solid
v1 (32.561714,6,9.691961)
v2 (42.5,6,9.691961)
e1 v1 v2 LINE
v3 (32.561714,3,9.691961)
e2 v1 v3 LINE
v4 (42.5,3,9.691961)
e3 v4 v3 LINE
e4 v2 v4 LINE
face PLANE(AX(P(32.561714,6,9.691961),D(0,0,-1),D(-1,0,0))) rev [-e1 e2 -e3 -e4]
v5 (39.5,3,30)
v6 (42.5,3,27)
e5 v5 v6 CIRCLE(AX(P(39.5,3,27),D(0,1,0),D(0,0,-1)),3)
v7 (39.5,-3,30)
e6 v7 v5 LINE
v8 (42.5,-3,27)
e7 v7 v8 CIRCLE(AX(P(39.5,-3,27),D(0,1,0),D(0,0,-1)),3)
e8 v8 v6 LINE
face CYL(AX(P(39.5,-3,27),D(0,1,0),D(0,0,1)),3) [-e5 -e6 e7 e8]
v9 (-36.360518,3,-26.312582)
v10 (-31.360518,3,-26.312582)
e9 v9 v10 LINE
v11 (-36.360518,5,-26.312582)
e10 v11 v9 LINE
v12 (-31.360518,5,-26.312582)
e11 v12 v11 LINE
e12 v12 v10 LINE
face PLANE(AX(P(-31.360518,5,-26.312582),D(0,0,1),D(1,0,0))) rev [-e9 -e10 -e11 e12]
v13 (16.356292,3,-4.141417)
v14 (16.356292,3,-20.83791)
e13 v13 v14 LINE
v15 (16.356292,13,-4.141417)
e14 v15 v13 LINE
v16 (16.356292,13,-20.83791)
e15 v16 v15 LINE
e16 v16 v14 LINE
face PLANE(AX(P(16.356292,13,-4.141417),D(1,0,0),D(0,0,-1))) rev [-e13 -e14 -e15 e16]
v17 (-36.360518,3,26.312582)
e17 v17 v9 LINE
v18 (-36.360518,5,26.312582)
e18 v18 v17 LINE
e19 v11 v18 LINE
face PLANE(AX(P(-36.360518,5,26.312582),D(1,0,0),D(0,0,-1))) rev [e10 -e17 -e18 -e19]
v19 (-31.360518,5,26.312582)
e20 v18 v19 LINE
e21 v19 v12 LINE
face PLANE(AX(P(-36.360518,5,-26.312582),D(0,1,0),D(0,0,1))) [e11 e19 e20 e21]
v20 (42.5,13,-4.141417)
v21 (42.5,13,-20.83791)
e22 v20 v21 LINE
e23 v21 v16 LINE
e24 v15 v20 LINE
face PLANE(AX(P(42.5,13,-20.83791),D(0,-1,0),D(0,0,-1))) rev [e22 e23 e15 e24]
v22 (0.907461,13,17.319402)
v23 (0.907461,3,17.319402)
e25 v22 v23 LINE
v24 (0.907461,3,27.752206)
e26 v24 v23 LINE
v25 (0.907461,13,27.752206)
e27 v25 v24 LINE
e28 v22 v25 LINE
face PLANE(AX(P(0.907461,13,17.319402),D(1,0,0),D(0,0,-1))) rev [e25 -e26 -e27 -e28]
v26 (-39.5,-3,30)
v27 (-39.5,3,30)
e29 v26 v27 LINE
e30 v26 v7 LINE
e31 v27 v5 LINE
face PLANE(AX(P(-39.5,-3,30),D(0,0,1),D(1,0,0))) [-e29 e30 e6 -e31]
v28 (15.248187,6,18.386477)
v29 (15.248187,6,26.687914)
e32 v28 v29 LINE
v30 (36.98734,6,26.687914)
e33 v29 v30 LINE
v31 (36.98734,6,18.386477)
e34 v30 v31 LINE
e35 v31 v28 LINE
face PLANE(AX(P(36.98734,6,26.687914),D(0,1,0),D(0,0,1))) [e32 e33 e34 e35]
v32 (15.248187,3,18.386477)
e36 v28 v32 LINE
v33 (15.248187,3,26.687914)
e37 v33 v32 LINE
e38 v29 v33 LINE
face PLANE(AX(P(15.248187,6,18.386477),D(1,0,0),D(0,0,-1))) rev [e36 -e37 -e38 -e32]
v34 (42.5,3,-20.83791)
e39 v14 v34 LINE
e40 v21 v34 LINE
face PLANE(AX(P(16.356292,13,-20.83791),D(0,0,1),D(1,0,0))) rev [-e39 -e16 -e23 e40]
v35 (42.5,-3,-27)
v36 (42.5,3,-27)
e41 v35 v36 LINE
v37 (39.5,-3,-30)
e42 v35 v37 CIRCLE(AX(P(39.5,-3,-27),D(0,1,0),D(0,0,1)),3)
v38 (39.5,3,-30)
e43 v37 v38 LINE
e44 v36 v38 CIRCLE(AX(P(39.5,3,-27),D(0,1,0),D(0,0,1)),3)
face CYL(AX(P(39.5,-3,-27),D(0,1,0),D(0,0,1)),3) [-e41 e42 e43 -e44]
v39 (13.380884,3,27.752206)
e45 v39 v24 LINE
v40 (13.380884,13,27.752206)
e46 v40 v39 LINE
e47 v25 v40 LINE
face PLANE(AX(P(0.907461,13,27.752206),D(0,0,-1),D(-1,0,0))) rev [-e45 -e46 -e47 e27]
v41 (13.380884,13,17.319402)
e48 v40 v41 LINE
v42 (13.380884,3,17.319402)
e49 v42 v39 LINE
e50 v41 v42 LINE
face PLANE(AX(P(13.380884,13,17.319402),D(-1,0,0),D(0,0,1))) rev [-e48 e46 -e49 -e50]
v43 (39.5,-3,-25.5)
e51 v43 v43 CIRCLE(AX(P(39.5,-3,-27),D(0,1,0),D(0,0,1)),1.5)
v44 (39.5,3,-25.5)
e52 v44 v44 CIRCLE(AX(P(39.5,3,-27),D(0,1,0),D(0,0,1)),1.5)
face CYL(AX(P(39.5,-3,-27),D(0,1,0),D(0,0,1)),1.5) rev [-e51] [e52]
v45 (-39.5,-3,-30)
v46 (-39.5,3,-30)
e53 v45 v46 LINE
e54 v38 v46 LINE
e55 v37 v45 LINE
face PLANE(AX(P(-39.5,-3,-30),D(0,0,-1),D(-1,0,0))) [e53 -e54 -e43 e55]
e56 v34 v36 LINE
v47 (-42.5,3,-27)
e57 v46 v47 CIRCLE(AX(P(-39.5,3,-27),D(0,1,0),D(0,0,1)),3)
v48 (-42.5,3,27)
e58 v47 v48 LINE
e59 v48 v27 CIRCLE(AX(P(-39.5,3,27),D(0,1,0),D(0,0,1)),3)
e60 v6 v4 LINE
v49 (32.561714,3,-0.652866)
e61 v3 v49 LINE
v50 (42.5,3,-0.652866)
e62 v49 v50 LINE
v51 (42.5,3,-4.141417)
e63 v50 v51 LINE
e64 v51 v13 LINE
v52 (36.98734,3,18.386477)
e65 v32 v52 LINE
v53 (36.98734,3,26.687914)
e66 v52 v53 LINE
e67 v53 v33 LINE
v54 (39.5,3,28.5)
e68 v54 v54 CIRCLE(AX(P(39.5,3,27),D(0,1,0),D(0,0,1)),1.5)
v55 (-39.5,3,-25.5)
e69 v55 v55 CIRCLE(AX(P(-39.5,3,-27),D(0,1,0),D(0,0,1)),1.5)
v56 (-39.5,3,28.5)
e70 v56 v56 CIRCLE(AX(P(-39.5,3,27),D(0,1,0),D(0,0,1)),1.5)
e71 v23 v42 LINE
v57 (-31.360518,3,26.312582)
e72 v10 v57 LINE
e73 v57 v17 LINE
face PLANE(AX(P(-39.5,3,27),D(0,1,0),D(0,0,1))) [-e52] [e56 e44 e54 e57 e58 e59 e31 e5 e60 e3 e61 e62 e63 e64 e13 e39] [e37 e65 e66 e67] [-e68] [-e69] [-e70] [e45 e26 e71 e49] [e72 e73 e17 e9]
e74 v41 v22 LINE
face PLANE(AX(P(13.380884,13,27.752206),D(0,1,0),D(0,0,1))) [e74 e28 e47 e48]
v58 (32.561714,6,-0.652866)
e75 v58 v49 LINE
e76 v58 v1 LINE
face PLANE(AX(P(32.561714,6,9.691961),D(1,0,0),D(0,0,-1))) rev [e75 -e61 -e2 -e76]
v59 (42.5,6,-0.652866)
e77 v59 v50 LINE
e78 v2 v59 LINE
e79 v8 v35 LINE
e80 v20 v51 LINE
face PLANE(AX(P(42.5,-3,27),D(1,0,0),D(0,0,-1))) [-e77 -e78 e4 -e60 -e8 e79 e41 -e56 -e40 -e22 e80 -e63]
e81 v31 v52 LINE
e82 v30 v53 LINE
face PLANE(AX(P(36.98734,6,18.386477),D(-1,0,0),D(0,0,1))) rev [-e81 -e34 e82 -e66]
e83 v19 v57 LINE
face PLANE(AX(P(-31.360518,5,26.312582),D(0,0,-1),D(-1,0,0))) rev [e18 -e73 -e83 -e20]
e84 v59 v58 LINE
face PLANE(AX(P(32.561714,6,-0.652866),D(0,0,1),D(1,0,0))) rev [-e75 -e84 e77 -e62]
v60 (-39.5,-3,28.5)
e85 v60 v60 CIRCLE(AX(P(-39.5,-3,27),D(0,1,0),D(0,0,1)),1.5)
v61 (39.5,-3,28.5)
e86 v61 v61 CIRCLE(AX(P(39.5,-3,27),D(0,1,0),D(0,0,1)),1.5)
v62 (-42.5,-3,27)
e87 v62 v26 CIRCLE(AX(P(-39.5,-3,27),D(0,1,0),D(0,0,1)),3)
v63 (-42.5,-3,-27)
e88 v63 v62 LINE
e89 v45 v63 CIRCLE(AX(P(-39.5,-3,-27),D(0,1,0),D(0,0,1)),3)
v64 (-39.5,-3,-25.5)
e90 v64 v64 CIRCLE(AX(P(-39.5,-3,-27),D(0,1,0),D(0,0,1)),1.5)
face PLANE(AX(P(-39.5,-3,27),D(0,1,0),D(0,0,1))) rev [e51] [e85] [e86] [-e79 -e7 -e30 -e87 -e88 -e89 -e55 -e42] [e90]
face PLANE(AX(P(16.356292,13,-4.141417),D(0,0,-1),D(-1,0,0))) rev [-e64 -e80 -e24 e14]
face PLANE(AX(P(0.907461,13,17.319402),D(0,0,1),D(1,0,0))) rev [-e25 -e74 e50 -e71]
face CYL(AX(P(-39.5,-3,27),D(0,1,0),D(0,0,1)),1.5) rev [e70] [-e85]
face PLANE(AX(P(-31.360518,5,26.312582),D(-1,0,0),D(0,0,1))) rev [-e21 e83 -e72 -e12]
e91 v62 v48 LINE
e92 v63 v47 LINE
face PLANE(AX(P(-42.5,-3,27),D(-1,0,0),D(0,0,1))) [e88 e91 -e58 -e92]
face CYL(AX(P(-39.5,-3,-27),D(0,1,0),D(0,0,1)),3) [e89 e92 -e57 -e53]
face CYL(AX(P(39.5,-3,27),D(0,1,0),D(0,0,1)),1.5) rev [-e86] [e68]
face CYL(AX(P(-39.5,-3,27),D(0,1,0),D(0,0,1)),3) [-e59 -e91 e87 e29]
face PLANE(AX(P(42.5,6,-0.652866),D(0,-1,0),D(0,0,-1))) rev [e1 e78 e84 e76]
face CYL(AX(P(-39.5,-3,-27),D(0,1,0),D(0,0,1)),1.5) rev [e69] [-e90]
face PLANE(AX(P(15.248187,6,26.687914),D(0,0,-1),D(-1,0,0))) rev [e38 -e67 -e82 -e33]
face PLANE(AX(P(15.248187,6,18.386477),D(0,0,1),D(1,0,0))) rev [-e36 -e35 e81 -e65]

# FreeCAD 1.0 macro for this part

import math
import FreeCAD as App
import Part
import Sketcher

doc = App.newDocument("Part")
body = doc.addObject("PartDesign::Body", "Body")

# Sketch on XZ plane
sketch1 = body.newObject("Sketcher::SketchObject", "Sketch")
sketch1.AttachmentSupport = (doc.getObject("XZ_Plane"), [""])
sketch1.MapMode = "FlatFace"
sketch1.addGeometry([
    Part.LineSegment(App.Vector(-39.5, 30, 0), App.Vector(39.5, 30, 0)),  # 0
    Part.ArcOfCircle(Part.Circle(App.Vector(39.5, 27, 0), App.Vector(0, 0, 1), 3), math.radians(0), math.radians(90)),  # 1
    Part.LineSegment(App.Vector(42.5, 27, 0), App.Vector(42.5, -27, 0)),  # 2
    Part.ArcOfCircle(Part.Circle(App.Vector(39.5, -27, 0), App.Vector(0, 0, 1), 3), math.radians(-90), math.radians(0)),  # 3
    Part.LineSegment(App.Vector(39.5, -30, 0), App.Vector(-39.5, -30, 0)),  # 4
    Part.ArcOfCircle(Part.Circle(App.Vector(-39.5, -27, 0), App.Vector(0, 0, 1), 3), math.radians(180), math.radians(270)),  # 5
    Part.LineSegment(App.Vector(-42.5, -27, 0), App.Vector(-42.5, 27, 0)),  # 6
    Part.ArcOfCircle(Part.Circle(App.Vector(-39.5, 27, 0), App.Vector(0, 0, 1), 3), math.radians(90), math.radians(180)),  # 7
    Part.Circle(App.Vector(-39.5, 27, 0), App.Vector(0, 0, 1), 1.5),  # 8
    Part.Circle(App.Vector(39.5, 27, 0), App.Vector(0, 0, 1), 1.5),  # 9
    Part.Circle(App.Vector(-39.5, -27, 0), App.Vector(0, 0, 1), 1.5),  # 10
    Part.Circle(App.Vector(39.5, -27, 0), App.Vector(0, 0, 1), 1.5),  # 11
], False)
sketch1.addConstraint([
    Sketcher.Constraint("Tangent", 0, 2, 1, 2),
    Sketcher.Constraint("Tangent", 1, 1, 2, 1),
    Sketcher.Constraint("Tangent", 2, 2, 3, 2),
    Sketcher.Constraint("Tangent", 3, 1, 4, 1),
    Sketcher.Constraint("Tangent", 4, 2, 5, 2),
    Sketcher.Constraint("Tangent", 5, 1, 6, 1),
    Sketcher.Constraint("Tangent", 6, 2, 7, 2),
    Sketcher.Constraint("Tangent", 7, 1, 0, 1),
    Sketcher.Constraint("Horizontal", 0),
    Sketcher.Constraint("Vertical", 2),
    Sketcher.Constraint("Horizontal", 4),
    Sketcher.Constraint("Vertical", 6),
    Sketcher.Constraint("Coincident", 8, 3, 7, 3),
    Sketcher.Constraint("Coincident", 9, 3, 1, 3),
    Sketcher.Constraint("Coincident", 10, 3, 5, 3),
    Sketcher.Constraint("Coincident", 11, 3, 3, 3),
    Sketcher.Constraint("Equal", 1, 3),
    Sketcher.Constraint("Equal", 3, 5),
    Sketcher.Constraint("Equal", 5, 7),
    Sketcher.Constraint("Equal", 8, 9),
    Sketcher.Constraint("Equal", 9, 10),
    Sketcher.Constraint("Equal", 10, 11),
    Sketcher.Constraint("Symmetric", 1, 3, 5, 3, -1, 1),
    Sketcher.Constraint("Diameter", 8, 3.0),
    Sketcher.Constraint("Radius", 1, 3.0),
    Sketcher.Constraint("DistanceX", 0, 1, 0, 2, 79.0),
    Sketcher.Constraint("DistanceY", 2, 2, 2, 1, 54.0),
])
pad1 = body.newObject("PartDesign::Pad", "Pad")
pad1.Profile = sketch1
pad1.Type = "TwoLengths"
pad1.Length = 3
pad1.Length2 = 3
pad1.Reversed = True

# Sketch on XZ plane
sketch2 = body.newObject("Sketcher::SketchObject", "Sketch001")
sketch2.AttachmentSupport = (doc.getObject("XZ_Plane"), [""])
sketch2.MapMode = "FlatFace"
sketch2.addGeometry([
    Part.LineSegment(App.Vector(-36.360518, -26.312582, 0), App.Vector(-36.360518, 26.312582, 0)),
    Part.LineSegment(App.Vector(-36.360518, 26.312582, 0), App.Vector(-31.360518, 26.312582, 0)),
    Part.LineSegment(App.Vector(-31.360518, 26.312582, 0), App.Vector(-31.360518, -26.312582, 0)),
    Part.LineSegment(App.Vector(-31.360518, -26.312582, 0), App.Vector(-36.360518, -26.312582, 0)),
], False)
sketch2.addConstraint([
    Sketcher.Constraint("Coincident", 0, 2, 1, 1),
    Sketcher.Constraint("Coincident", 1, 2, 2, 1),
    Sketcher.Constraint("Coincident", 2, 2, 3, 1),
    Sketcher.Constraint("Coincident", 3, 2, 0, 1),
    Sketcher.Constraint("Vertical", 0),
    Sketcher.Constraint("Horizontal", 1),
    Sketcher.Constraint("Vertical", 2),
    Sketcher.Constraint("Horizontal", 3),
    Sketcher.Constraint("DistanceX", 1, 1, 1, 2, 5.0),
    Sketcher.Constraint("DistanceY", 0, 1, 0, 2, 52.625164),
    Sketcher.Constraint("DistanceX", 0, 2, -1, 1, 36.360518),
    Sketcher.Constraint("DistanceY", -1, 1, 0, 2, 26.312582),
])
pad2 = body.newObject("PartDesign::Pad", "Pad001")
pad2.Profile = sketch2
pad2.Length = 5
pad2.Reversed = True

# Sketch on XZ plane
sketch3 = body.newObject("Sketcher::SketchObject", "Sketch002")
sketch3.AttachmentSupport = (doc.getObject("XZ_Plane"), [""])
sketch3.MapMode = "FlatFace"
sketch3.addGeometry([
    Part.LineSegment(App.Vector(16.356292, -20.83791, 0), App.Vector(16.356292, -4.141417, 0)),
    Part.LineSegment(App.Vector(16.356292, -4.141417, 0), App.Vector(42.5, -4.141417, 0)),
    Part.LineSegment(App.Vector(42.5, -4.141417, 0), App.Vector(42.5, -20.83791, 0)),
    Part.LineSegment(App.Vector(42.5, -20.83791, 0), App.Vector(16.356292, -20.83791, 0)),
], False)
sketch3.addConstraint([
    Sketcher.Constraint("Coincident", 0, 2, 1, 1),
    Sketcher.Constraint("Coincident", 1, 2, 2, 1),
    Sketcher.Constraint("Coincident", 2, 2, 3, 1),
    Sketcher.Constraint("Coincident", 3, 2, 0, 1),
    Sketcher.Constraint("Vertical", 0),
    Sketcher.Constraint("Horizontal", 1),
    Sketcher.Constraint("Vertical", 2),
    Sketcher.Constraint("Horizontal", 3),
    Sketcher.Constraint("DistanceX", -1, 1, 1, 2, 42.5),
    Sketcher.Constraint("DistanceX", 1, 1, 1, 2, 26.143708),
    Sketcher.Constraint("DistanceY", 0, 1, 0, 2, 16.696493),
    Sketcher.Constraint("DistanceY", 2, 2, -1, 1, 20.83791),
])
pad3 = body.newObject("PartDesign::Pad", "Pad002")
pad3.Profile = sketch3
pad3.Length = 13
pad3.Reversed = True

# Sketch on XZ plane
sketch4 = body.newObject("Sketcher::SketchObject", "Sketch003")
sketch4.AttachmentSupport = (doc.getObject("XZ_Plane"), [""])
sketch4.MapMode = "FlatFace"
sketch4.addGeometry([
    Part.LineSegment(App.Vector(32.561714, -0.652866, 0), App.Vector(32.561714, 9.691961, 0)),
    Part.LineSegment(App.Vector(32.561714, 9.691961, 0), App.Vector(42.5, 9.691961, 0)),
    Part.LineSegment(App.Vector(42.5, 9.691961, 0), App.Vector(42.5, -0.652866, 0)),
    Part.LineSegment(App.Vector(42.5, -0.652866, 0), App.Vector(32.561714, -0.652866, 0)),
], False)
sketch4.addConstraint([
    Sketcher.Constraint("Coincident", 0, 2, 1, 1),
    Sketcher.Constraint("Coincident", 1, 2, 2, 1),
    Sketcher.Constraint("Coincident", 2, 2, 3, 1),
    Sketcher.Constraint("Coincident", 3, 2, 0, 1),
    Sketcher.Constraint("Vertical", 0),
    Sketcher.Constraint("Horizontal", 1),
    Sketcher.Constraint("Vertical", 2),
    Sketcher.Constraint("Horizontal", 3),
    Sketcher.Constraint("DistanceX", -1, 1, 1, 2, 42.5),
    Sketcher.Constraint("DistanceX", 1, 1, 1, 2, 9.938286),
    Sketcher.Constraint("DistanceY", 0, 1, 0, 2, 10.344827),
    Sketcher.Constraint("DistanceY", -1, 1, 0, 2, 9.691961),
])
pad4 = body.newObject("PartDesign::Pad", "Pad003")
pad4.Profile = sketch4
pad4.Length = 6
pad4.Reversed = True

# Sketch on XZ plane
sketch5 = body.newObject("Sketcher::SketchObject", "Sketch004")
sketch5.AttachmentSupport = (doc.getObject("XZ_Plane"), [""])
sketch5.MapMode = "FlatFace"
sketch5.addGeometry([
    Part.LineSegment(App.Vector(0.907461, 17.319402, 0), App.Vector(0.907461, 27.752206, 0)),
    Part.LineSegment(App.Vector(0.907461, 27.752206, 0), App.Vector(13.380884, 27.752206, 0)),
    Part.LineSegment(App.Vector(13.380884, 27.752206, 0), App.Vector(13.380884, 17.319402, 0)),
    Part.LineSegment(App.Vector(13.380884, 17.319402, 0), App.Vector(0.907461, 17.319402, 0)),
], False)
sketch5.addConstraint([
    Sketcher.Constraint("Coincident", 0, 2, 1, 1),
    Sketcher.Constraint("Coincident", 1, 2, 2, 1),
    Sketcher.Constraint("Coincident", 2, 2, 3, 1),
    Sketcher.Constraint("Coincident", 3, 2, 0, 1),
    Sketcher.Constraint("Vertical", 0),
    Sketcher.Constraint("Horizontal", 1),
    Sketcher.Constraint("Vertical", 2),
    Sketcher.Constraint("Horizontal", 3),
    Sketcher.Constraint("DistanceY", -1, 1, 2, 2, 17.319402),
    Sketcher.Constraint("DistanceX", 1, 1, 1, 2, 12.473424),
    Sketcher.Constraint("DistanceY", 0, 1, 0, 2, 10.432804),
    Sketcher.Constraint("DistanceX", -1, 1, 0, 2, 0.907461),
])
pad5 = body.newObject("PartDesign::Pad", "Pad004")
pad5.Profile = sketch5
pad5.Length = 13
pad5.Reversed = True

# Sketch on XZ plane
sketch6 = body.newObject("Sketcher::SketchObject", "Sketch005")
sketch6.AttachmentSupport = (doc.getObject("XZ_Plane"), [""])
sketch6.MapMode = "FlatFace"
sketch6.addGeometry([
    Part.LineSegment(App.Vector(15.248187, 18.386477, 0), App.Vector(15.248187, 26.687914, 0)),
    Part.LineSegment(App.Vector(15.248187, 26.687914, 0), App.Vector(36.98734, 26.687914, 0)),
    Part.LineSegment(App.Vector(36.98734, 26.687914, 0), App.Vector(36.98734, 18.386477, 0)),
    Part.LineSegment(App.Vector(36.98734, 18.386477, 0), App.Vector(15.248187, 18.386477, 0)),
], False)
sketch6.addConstraint([
    Sketcher.Constraint("Coincident", 0, 2, 1, 1),
    Sketcher.Constraint("Coincident", 1, 2, 2, 1),
    Sketcher.Constraint("Coincident", 2, 2, 3, 1),
    Sketcher.Constraint("Coincident", 3, 2, 0, 1),
    Sketcher.Constraint("Vertical", 0),
    Sketcher.Constraint("Horizontal", 1),
    Sketcher.Constraint("Vertical", 2),
    Sketcher.Constraint("Horizontal", 3),
    Sketcher.Constraint("DistanceX", 1, 1, 1, 2, 21.739153),
    Sketcher.Constraint("DistanceY", 0, 1, 0, 2, 8.301437),
    Sketcher.Constraint("DistanceX", -1, 1, 1, 2, 36.98734),
    Sketcher.Constraint("DistanceY", -1, 1, 0, 2, 26.687914),
])
pad6 = body.newObject("PartDesign::Pad", "Pad005")
pad6.Profile = sketch6
pad6.Length = 6
pad6.Reversed = True

doc.recompute()
